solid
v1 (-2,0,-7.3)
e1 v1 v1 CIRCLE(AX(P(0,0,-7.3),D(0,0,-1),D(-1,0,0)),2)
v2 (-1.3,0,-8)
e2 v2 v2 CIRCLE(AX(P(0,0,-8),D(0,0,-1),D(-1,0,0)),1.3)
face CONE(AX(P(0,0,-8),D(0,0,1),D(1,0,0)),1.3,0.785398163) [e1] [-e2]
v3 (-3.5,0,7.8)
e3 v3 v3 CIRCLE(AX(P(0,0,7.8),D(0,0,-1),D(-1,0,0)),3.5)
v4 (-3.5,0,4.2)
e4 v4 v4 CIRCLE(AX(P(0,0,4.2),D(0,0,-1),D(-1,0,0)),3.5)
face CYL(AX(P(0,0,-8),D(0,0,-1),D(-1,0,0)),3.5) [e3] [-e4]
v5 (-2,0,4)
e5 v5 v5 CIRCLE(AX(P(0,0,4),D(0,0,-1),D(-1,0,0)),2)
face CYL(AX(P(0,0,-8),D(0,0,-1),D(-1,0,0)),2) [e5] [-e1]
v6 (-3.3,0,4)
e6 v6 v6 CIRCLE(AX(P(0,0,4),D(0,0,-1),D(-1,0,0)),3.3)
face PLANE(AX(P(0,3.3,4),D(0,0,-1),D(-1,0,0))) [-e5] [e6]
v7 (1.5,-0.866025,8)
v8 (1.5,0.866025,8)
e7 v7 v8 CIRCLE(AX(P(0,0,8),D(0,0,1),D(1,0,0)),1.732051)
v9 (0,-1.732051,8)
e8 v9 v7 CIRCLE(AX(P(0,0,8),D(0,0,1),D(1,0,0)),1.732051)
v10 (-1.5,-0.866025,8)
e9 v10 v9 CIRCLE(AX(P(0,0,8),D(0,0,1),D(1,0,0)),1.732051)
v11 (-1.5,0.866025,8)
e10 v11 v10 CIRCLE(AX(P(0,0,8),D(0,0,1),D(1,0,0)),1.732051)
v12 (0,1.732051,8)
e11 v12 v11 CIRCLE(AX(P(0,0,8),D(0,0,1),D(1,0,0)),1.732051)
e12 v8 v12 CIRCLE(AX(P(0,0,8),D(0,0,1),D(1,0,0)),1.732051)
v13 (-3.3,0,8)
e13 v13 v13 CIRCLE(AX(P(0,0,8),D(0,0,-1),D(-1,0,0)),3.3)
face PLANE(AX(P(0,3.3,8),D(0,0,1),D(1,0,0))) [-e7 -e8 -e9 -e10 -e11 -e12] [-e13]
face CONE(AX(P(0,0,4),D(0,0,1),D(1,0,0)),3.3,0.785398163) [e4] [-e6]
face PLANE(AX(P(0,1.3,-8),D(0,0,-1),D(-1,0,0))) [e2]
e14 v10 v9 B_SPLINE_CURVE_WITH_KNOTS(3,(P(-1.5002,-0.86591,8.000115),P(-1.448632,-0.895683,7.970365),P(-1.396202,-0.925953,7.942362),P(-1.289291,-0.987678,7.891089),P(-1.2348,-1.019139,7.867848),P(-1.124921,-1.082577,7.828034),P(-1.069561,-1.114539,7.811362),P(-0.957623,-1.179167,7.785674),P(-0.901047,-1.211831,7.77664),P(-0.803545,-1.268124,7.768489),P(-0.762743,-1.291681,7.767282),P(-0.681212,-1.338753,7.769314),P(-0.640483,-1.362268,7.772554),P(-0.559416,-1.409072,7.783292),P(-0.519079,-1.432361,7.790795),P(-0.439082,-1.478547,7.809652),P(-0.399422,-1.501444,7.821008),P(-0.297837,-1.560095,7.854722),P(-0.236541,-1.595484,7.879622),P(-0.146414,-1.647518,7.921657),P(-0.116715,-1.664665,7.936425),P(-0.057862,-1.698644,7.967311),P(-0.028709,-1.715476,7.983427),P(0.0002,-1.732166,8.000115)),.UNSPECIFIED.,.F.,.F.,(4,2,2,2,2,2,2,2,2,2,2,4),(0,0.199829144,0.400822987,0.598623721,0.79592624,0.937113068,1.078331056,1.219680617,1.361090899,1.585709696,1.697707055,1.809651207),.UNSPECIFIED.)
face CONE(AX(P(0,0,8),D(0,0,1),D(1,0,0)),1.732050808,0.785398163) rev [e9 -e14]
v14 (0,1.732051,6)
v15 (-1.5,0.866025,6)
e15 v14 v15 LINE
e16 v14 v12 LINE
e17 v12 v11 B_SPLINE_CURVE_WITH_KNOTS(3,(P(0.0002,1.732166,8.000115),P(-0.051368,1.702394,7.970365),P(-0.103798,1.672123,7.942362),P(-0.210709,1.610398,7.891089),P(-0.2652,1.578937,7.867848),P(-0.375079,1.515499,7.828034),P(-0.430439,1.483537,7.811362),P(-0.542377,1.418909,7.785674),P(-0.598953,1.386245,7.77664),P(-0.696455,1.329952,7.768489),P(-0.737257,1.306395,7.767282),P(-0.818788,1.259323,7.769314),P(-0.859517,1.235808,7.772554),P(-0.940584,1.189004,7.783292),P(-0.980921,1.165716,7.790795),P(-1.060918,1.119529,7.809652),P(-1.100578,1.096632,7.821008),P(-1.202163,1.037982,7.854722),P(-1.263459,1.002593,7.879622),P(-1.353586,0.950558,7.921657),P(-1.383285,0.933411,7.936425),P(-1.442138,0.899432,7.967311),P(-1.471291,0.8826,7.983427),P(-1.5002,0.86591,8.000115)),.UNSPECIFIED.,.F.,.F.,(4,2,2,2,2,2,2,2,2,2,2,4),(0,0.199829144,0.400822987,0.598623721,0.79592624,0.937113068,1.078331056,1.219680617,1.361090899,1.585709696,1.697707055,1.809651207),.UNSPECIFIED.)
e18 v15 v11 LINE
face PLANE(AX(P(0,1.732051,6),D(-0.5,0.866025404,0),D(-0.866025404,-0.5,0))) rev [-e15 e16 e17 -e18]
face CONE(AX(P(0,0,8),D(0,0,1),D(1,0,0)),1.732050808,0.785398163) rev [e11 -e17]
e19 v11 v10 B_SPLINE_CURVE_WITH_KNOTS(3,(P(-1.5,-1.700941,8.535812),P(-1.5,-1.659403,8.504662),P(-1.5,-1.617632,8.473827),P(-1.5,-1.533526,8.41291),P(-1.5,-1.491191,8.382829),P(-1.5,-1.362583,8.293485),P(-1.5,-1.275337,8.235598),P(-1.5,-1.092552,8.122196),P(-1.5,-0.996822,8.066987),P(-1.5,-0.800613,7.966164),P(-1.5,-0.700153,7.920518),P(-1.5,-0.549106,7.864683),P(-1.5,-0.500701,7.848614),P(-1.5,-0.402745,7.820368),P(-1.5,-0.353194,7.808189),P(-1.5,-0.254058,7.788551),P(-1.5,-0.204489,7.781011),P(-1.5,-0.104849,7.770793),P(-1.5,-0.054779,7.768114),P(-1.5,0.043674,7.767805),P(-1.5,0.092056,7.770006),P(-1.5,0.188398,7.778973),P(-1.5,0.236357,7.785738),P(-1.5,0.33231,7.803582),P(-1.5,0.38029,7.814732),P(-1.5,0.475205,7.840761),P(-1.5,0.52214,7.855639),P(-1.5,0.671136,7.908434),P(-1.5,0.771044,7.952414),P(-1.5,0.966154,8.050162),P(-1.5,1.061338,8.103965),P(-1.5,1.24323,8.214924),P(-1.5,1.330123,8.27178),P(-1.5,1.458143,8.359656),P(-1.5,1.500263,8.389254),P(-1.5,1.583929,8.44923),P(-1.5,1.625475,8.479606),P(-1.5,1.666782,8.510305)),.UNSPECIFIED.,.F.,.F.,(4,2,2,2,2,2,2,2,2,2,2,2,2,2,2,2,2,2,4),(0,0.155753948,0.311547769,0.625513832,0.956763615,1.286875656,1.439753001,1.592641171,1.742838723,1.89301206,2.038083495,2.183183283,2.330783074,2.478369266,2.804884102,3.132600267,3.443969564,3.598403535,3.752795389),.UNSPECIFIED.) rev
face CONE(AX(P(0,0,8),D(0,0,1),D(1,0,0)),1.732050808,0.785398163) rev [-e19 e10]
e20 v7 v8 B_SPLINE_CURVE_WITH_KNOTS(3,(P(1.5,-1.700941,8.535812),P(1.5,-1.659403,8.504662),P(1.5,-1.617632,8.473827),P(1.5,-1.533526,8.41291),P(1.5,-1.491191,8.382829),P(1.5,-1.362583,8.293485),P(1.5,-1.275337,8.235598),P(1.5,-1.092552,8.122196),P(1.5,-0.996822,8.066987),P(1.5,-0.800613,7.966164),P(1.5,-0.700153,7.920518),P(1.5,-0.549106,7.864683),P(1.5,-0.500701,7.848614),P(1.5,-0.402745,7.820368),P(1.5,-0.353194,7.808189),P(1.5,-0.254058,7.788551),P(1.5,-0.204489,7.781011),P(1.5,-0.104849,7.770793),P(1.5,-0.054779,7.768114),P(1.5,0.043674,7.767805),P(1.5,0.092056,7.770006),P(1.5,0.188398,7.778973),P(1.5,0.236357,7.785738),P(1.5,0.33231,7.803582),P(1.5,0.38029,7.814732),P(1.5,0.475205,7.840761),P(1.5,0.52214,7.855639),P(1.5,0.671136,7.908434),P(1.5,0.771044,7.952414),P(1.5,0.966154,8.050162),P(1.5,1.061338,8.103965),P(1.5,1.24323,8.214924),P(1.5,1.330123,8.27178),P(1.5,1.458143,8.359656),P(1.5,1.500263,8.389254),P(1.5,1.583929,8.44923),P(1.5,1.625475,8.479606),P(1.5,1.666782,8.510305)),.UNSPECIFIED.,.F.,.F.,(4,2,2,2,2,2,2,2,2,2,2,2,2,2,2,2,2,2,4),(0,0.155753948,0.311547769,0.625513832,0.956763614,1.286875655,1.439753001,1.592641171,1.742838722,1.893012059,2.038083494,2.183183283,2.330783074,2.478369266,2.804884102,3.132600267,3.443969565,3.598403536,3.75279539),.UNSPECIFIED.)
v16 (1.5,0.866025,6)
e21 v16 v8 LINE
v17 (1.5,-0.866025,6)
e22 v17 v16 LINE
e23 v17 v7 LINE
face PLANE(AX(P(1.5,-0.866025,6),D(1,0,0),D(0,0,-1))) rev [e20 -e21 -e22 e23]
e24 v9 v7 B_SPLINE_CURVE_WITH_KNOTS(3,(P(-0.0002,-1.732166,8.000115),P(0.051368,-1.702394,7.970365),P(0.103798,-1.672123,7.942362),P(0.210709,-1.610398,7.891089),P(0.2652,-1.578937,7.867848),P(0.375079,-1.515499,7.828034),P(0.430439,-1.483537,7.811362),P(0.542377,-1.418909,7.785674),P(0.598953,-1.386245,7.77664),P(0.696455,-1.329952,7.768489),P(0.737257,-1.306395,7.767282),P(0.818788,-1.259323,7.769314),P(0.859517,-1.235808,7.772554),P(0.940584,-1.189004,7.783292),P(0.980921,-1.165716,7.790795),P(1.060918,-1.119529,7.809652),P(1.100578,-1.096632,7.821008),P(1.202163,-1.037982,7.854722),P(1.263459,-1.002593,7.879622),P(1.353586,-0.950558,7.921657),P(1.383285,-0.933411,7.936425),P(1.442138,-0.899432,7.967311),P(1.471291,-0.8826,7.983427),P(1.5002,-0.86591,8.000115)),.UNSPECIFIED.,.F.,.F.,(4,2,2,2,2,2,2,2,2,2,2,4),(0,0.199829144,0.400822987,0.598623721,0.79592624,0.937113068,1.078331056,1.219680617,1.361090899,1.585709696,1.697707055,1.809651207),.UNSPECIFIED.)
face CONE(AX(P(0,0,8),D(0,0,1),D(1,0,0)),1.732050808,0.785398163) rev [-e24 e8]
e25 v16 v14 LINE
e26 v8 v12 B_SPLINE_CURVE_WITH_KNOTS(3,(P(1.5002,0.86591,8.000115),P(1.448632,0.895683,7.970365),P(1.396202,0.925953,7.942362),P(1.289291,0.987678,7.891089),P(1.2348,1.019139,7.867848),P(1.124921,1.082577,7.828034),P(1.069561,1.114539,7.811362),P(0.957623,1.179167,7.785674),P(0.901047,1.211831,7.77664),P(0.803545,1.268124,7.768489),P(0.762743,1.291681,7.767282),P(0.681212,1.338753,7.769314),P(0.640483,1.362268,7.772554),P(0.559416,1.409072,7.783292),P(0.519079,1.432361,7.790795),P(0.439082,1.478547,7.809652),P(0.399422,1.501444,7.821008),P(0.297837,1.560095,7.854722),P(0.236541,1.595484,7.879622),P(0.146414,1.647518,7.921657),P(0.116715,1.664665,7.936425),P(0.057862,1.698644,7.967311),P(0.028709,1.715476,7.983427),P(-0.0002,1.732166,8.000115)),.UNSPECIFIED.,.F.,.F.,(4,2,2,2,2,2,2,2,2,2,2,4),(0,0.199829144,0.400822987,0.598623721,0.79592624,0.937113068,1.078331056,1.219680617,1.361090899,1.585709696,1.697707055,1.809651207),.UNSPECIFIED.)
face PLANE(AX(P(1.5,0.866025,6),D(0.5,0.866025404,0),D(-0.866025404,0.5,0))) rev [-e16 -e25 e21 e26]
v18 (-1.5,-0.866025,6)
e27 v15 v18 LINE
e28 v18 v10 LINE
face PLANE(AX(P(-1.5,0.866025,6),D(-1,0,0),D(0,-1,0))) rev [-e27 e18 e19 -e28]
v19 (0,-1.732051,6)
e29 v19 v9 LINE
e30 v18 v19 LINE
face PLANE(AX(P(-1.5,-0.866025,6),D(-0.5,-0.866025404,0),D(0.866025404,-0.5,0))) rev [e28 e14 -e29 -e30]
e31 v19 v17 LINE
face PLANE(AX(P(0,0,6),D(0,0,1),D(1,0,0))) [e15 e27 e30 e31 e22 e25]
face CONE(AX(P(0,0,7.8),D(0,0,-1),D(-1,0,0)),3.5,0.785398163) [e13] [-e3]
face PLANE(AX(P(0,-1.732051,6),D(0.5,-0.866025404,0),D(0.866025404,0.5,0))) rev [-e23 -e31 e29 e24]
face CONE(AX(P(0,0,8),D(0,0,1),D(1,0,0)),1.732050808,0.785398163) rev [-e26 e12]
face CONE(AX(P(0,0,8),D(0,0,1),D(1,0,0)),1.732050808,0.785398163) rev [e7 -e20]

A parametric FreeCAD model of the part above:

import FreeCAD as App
import Part
import Sketcher
from FreeCAD import Vector
Q = App.Units.Quantity

doc = App.newDocument("Part")
body = doc.addObject("PartDesign::Body", "Body")

sketch1 = body.newObject("Sketcher::SketchObject", "Sketch")
sketch1.AttachmentSupport = (doc.getObject("YZ_Plane"), [""])
sketch1.MapMode = "FlatFace"
sketch1.addGeometry([
    Part.LineSegment(Vector(3.5, 4.2, 0), Vector(3.5, 7.8, 0)),
    Part.LineSegment(Vector(3.5, 7.8, 0), Vector(3.3, 8, 0)),
    Part.LineSegment(Vector(3.3, 8, 0), Vector(0, 8, 0)),
    Part.LineSegment(Vector(0, 8, 0), Vector(0, -8, 0)),
    Part.LineSegment(Vector(0, -8, 0), Vector(1.3, -8, 0)),
    Part.LineSegment(Vector(1.3, -8, 0), Vector(2, -7.3, 0)),
    Part.LineSegment(Vector(2, -7.3, 0), Vector(2, 4, 0)),
    Part.LineSegment(Vector(2, 4, 0), Vector(3.3, 4, 0)),
    Part.LineSegment(Vector(3.3, 4, 0), Vector(3.5, 4.2, 0)),
], False)
sketch1.addConstraint([
    Sketcher.Constraint("Coincident", 0, 2, 1, 1),
    Sketcher.Constraint("Coincident", 1, 2, 2, 1),
    Sketcher.Constraint("Coincident", 2, 2, 3, 1),
    Sketcher.Constraint("Coincident", 3, 2, 4, 1),
    Sketcher.Constraint("Coincident", 4, 2, 5, 1),
    Sketcher.Constraint("Coincident", 5, 2, 6, 1),
    Sketcher.Constraint("Coincident", 6, 2, 7, 1),
    Sketcher.Constraint("Coincident", 7, 2, 8, 1),
    Sketcher.Constraint("Coincident", 8, 2, 0, 1),
    Sketcher.Constraint("Vertical", 0),
    Sketcher.Constraint("Horizontal", 2),
    Sketcher.Constraint("Vertical", 3),
    Sketcher.Constraint("Horizontal", 4),
    Sketcher.Constraint("Vertical", 6),
    Sketcher.Constraint("Horizontal", 7),
    Sketcher.Constraint("Symmetric", 2, 2, 3, 2, -1, 1),
    Sketcher.Constraint("Perpendicular", 1, 5),
    Sketcher.Constraint("Parallel", 5, 8),
    Sketcher.Constraint("Vertical", 1, 2, 7, 2),
    Sketcher.Constraint("Equal", 4, 7),
    Sketcher.Constraint("Equal", 1, 8),
    Sketcher.Constraint("DistanceY", 3, 2, 3, 1, Q("16 mm")),
    Sketcher.Constraint("DistanceX", 2, 2, 2, 1, Q("3.3 mm")),
    Sketcher.Constraint("DistanceX", 4, 1, 4, 2, Q("1.3 mm")),
    Sketcher.Constraint("DistanceY", 0, 1, 0, 2, Q("3.6 mm")),
    Sketcher.Constraint("DistanceY", 6, 1, 6, 2, Q("11.3 mm")),
])
revolution = body.newObject("PartDesign::Revolution", "Revolution")
revolution.Profile = sketch1
revolution.ReferenceAxis = (sketch1, ["V_Axis"])
revolution.Angle = 360

sketch2 = body.newObject("Sketcher::SketchObject", "Sketch001")
sketch2.AttachmentSupport = (doc.getObject("XY_Plane"), [""])
sketch2.MapMode = "FlatFace"
sketch2.AttachmentOffset = App.Placement(Vector(0, 0, 6), App.Rotation())
sketch2.addGeometry([
    Part.LineSegment(Vector(0, 1.732051, 0), Vector(-1.5, 0.866025, 0)),
    Part.LineSegment(Vector(-1.5, 0.866025, 0), Vector(-1.5, -0.866025, 0)),
    Part.LineSegment(Vector(-1.5, -0.866025, 0), Vector(0, -1.732051, 0)),
    Part.LineSegment(Vector(0, -1.732051, 0), Vector(1.5, -0.866025, 0)),
    Part.LineSegment(Vector(1.5, -0.866025, 0), Vector(1.5, 0.866025, 0)),
    Part.LineSegment(Vector(1.5, 0.866025, 0), Vector(0, 1.732051, 0)),
], False)
sketch2.addConstraint([
    Sketcher.Constraint("Coincident", 0, 2, 1, 1),
    Sketcher.Constraint("Coincident", 1, 2, 2, 1),
    Sketcher.Constraint("Coincident", 2, 2, 3, 1),
    Sketcher.Constraint("Coincident", 3, 2, 4, 1),
    Sketcher.Constraint("Coincident", 4, 2, 5, 1),
    Sketcher.Constraint("Coincident", 5, 2, 0, 1),
    Sketcher.Constraint("Vertical", 1),
    Sketcher.Constraint("Vertical", 4),
    Sketcher.Constraint("Symmetric", 0, 2, 3, 2, -1, 1),
    Sketcher.Constraint("Symmetric", 2, 2, 5, 2, -1, 1),
    Sketcher.Constraint("PointOnObject", 2, 2, -2),
    Sketcher.Constraint("Parallel", 2, 5),
    Sketcher.Constraint("Horizontal", 1, 2, 3, 2),
    Sketcher.Constraint("Angle", 0, Q("-150 deg")),
    Sketcher.Constraint("DistanceX", 1, 2, 3, 2, Q("3 mm")),
    Sketcher.Constraint("DistanceY", 1, 2, 1, 1, Q("1.732051 mm")),
])
pocket1 = body.newObject("PartDesign::Pocket", "Pocket")
pocket1.Profile = sketch2
pocket1.Length = 2
pocket1.Reversed = True

sketch3 = body.newObject("Sketcher::SketchObject", "Sketch002")
sketch3.AttachmentSupport = (doc.getObject("XY_Plane"), [""])
sketch3.MapMode = "FlatFace"
sketch3.AttachmentOffset = App.Placement(Vector(0, 0, 8), App.Rotation())
sketch3.addGeometry(Part.Circle(Vector(0, 0, 0), Vector(0, 0, 1), 1.732051), False)
sketch3.addConstraint([
    Sketcher.Constraint("Coincident", 0, 3, -1, 1),
    Sketcher.Constraint("Diameter", 0, Q("3.464102 mm")),
])
pocket2 = body.newObject("PartDesign::Pocket", "Pocket001")
pocket2.Profile = sketch3
pocket2.Length = 0.5
pocket2.TaperAngle = -45

doc.recompute()
